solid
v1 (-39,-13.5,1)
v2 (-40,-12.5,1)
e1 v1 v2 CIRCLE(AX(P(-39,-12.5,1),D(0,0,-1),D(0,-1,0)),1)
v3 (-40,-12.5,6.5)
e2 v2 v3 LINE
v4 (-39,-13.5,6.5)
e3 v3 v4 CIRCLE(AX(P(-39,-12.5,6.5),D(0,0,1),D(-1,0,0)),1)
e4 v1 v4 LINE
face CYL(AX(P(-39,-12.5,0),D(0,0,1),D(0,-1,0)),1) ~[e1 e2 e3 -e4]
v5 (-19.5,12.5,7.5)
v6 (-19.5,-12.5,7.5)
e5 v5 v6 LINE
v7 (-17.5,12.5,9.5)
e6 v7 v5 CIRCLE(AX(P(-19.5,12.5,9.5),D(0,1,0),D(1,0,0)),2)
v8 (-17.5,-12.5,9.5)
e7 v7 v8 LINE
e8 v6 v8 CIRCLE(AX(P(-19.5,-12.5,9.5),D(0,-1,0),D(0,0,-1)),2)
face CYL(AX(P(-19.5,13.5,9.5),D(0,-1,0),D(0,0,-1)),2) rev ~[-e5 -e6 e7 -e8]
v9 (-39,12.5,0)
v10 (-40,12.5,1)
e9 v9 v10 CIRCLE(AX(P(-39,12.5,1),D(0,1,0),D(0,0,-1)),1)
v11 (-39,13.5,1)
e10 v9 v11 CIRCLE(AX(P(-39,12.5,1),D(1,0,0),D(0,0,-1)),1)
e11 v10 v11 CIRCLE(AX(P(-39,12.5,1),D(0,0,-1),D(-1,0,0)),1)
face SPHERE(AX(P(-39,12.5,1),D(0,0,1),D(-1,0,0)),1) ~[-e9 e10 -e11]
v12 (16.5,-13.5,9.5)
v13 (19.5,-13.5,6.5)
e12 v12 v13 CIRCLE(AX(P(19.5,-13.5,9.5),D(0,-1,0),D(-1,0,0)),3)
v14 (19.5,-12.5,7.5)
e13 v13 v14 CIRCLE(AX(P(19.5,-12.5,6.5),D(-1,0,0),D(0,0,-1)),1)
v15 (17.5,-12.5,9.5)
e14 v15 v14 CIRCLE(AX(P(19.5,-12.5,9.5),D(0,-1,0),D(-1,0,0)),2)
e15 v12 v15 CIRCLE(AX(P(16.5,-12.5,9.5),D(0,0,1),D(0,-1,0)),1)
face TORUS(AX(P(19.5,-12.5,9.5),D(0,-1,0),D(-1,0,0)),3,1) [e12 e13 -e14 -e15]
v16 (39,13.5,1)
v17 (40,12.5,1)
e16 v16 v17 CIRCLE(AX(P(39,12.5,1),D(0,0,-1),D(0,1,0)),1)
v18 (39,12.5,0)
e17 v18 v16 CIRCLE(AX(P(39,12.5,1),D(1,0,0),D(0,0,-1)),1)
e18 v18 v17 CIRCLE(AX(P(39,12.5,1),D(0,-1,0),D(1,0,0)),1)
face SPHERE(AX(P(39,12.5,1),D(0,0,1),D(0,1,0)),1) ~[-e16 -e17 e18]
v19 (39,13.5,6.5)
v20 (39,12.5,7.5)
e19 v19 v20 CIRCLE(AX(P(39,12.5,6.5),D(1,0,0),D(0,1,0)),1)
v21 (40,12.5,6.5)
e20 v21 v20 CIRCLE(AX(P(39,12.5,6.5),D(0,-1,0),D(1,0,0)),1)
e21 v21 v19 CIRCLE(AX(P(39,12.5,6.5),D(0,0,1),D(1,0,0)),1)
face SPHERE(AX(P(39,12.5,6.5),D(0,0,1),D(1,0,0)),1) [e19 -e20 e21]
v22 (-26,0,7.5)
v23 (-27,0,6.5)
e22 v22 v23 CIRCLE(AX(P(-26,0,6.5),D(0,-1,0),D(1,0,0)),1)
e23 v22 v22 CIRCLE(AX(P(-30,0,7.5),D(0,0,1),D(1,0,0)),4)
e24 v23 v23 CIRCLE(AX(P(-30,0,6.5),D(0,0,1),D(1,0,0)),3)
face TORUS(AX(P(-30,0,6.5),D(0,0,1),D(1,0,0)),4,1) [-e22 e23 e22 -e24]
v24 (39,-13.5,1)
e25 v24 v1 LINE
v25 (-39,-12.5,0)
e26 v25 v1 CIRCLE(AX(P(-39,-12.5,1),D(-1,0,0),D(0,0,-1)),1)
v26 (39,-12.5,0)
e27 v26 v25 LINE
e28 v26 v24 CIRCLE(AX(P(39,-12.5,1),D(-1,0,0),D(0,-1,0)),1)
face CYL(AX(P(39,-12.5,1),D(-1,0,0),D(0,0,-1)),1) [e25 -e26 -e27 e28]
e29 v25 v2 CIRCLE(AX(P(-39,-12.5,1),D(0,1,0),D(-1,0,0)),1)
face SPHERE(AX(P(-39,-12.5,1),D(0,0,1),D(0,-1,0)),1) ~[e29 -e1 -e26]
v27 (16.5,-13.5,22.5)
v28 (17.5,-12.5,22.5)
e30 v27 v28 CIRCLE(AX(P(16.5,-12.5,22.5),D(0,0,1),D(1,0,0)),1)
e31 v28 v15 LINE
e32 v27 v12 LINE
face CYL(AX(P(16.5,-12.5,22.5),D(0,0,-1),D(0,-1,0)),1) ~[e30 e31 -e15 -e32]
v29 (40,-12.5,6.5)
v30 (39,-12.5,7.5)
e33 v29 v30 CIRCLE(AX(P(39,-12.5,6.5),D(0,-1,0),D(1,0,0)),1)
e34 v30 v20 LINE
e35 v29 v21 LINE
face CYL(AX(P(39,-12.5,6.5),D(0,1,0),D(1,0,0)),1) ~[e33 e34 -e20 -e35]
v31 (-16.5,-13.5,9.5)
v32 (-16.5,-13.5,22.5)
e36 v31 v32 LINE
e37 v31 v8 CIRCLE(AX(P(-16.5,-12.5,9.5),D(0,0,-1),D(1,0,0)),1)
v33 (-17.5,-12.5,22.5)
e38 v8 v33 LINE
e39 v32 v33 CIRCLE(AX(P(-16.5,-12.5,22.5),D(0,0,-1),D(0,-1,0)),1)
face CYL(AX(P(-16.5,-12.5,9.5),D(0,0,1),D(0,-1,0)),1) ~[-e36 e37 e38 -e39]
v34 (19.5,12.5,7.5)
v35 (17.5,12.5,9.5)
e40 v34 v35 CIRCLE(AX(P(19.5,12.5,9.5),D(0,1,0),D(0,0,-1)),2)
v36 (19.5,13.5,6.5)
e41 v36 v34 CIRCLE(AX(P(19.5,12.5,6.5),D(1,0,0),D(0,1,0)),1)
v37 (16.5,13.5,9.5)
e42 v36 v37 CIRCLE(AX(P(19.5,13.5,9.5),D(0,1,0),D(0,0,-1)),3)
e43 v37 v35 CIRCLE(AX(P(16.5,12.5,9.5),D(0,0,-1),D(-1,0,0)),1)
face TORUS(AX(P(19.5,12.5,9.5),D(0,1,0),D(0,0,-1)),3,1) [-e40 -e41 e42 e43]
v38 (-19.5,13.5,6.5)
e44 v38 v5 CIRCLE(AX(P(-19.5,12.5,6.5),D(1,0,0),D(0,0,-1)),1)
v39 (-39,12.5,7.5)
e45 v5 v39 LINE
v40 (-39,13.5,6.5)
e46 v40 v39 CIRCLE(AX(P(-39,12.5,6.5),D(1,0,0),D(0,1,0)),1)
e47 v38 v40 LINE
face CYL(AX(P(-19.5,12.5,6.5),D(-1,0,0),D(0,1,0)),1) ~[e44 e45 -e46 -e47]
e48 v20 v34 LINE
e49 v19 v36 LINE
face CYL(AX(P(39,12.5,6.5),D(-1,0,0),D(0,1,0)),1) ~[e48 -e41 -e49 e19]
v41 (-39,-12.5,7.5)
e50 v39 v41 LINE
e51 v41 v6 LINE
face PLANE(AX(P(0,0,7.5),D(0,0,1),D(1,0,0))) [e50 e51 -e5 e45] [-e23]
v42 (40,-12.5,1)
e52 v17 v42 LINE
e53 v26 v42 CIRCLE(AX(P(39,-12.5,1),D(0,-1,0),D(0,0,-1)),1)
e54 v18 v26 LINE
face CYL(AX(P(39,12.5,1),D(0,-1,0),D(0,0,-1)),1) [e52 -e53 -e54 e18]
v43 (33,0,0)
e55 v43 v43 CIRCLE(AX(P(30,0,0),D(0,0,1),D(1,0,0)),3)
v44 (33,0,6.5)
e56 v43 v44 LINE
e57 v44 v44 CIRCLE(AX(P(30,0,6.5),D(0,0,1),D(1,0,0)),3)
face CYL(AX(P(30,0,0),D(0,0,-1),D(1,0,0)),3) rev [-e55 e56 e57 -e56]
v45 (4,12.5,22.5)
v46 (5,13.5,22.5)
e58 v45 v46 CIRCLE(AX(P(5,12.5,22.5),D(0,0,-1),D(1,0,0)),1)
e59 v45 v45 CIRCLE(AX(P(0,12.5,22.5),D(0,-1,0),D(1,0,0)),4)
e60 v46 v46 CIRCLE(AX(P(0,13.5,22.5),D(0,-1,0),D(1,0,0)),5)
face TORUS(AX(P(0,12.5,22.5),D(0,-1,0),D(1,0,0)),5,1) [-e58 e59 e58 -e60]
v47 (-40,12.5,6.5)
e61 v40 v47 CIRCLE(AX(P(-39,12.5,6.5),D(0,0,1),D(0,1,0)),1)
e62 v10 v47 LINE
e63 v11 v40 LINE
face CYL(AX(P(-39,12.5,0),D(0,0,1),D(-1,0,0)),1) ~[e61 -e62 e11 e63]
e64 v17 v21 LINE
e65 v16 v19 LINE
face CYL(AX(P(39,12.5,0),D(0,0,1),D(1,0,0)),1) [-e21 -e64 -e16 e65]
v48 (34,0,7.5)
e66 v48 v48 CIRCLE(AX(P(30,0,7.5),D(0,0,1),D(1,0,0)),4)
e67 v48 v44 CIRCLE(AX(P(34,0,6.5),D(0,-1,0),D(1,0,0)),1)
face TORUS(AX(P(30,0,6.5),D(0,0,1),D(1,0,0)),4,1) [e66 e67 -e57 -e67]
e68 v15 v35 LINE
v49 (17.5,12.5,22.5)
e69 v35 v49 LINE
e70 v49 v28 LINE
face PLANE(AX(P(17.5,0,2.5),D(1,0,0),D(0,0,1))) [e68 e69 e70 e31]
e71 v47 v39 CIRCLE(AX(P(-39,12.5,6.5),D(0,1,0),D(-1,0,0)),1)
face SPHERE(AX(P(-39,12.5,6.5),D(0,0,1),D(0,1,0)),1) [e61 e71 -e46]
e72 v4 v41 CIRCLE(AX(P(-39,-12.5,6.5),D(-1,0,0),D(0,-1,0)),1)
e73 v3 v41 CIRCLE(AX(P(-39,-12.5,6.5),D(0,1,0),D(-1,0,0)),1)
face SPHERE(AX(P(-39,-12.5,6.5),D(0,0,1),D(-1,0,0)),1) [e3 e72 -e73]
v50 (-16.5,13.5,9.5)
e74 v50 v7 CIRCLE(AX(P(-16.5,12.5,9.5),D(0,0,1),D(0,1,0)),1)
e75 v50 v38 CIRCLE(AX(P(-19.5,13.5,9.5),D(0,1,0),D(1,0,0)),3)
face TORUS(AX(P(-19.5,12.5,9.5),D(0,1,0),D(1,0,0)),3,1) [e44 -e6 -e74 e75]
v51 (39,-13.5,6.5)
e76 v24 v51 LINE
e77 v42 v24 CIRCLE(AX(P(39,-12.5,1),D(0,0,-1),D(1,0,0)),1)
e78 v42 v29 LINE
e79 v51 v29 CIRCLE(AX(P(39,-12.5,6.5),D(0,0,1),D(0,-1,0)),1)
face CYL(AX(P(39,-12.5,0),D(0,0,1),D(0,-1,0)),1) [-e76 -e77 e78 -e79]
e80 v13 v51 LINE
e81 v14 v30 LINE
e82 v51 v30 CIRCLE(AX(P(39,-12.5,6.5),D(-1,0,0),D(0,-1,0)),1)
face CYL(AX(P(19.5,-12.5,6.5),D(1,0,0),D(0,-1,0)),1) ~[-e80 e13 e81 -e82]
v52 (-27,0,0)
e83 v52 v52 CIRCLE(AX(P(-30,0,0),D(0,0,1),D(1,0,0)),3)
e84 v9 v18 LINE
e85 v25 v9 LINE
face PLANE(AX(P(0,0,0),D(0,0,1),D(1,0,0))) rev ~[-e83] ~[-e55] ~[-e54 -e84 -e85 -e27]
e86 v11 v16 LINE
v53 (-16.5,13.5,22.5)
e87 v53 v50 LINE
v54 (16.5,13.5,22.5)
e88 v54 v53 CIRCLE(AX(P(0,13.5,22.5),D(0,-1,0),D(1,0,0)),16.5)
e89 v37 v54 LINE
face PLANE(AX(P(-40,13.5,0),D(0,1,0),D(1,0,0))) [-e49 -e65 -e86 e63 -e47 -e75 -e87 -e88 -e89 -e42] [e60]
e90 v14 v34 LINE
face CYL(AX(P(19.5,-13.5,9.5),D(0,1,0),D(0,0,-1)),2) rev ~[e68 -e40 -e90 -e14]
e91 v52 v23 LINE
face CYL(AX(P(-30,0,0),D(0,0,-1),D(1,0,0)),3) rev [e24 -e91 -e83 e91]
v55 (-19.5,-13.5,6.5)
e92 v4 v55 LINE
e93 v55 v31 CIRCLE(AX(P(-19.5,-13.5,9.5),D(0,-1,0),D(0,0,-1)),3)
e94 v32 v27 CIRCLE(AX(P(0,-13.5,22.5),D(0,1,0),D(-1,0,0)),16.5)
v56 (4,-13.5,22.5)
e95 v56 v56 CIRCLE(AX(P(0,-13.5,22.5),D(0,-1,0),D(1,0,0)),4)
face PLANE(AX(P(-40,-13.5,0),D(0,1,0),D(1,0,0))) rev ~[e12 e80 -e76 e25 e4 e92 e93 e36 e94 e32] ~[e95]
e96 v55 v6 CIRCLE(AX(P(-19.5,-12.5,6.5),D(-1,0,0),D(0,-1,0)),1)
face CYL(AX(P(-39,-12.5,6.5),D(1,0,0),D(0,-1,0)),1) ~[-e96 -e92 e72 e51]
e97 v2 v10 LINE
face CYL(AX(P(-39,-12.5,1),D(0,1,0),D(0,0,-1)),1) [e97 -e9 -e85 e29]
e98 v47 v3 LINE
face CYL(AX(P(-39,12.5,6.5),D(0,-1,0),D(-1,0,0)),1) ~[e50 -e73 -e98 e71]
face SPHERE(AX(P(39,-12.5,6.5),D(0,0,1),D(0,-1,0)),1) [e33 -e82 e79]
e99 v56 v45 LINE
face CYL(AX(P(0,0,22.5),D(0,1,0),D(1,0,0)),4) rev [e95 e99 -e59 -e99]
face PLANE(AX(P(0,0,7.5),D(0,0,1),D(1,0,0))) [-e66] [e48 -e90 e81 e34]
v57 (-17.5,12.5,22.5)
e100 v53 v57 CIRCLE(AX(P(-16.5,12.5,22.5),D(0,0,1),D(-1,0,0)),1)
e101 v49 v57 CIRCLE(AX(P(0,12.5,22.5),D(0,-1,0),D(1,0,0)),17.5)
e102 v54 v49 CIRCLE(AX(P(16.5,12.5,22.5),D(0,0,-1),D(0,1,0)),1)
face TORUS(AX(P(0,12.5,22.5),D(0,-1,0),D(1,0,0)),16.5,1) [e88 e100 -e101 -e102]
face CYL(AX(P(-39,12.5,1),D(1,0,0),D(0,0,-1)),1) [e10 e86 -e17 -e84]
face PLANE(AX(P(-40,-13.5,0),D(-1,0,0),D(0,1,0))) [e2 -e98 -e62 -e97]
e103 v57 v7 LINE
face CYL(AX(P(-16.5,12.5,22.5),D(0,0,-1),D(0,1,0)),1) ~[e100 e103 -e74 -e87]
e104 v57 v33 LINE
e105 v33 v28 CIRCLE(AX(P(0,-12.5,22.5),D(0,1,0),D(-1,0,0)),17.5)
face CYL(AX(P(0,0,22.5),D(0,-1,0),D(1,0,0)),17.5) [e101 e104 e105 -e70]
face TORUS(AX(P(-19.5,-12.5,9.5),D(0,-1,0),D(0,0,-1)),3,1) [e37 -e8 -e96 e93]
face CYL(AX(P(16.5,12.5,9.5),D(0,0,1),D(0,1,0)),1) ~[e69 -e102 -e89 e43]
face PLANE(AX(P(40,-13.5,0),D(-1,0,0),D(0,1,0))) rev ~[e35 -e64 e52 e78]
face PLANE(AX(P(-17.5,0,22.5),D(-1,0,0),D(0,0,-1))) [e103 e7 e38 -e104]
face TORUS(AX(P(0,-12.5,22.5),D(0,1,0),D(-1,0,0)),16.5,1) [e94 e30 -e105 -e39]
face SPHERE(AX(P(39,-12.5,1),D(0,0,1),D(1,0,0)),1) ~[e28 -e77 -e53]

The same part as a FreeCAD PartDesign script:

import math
import FreeCAD as App
import Part
import Sketcher


def edges_at(feature, points):
    """Names of the edges that pass closest to the given points."""
    edges = feature.Shape.Edges
    near = lambda p: min(range(len(edges)), key=lambda i: edges[i].distToShape(Part.Vertex(*p))[0])
    return sorted({f"Edge{near(p) + 1}" for p in points})


def add_polygon(sketch, points):
    """Adds a closed chain of lines whose ends are joined by coincident constraints."""
    first, n = sketch.GeometryCount, len(points)
    for a, b in zip(points, points[1:] + points[:1]):
        sketch.addGeometry(Part.LineSegment(App.Vector(*a, 0), App.Vector(*b, 0)), False)
    for i in range(n):
        sketch.addConstraint(Sketcher.Constraint("Coincident", first + i, 2, first + (i + 1) % n, 1))

doc = App.newDocument("Part")
body = doc.addObject("PartDesign::Body", "Body")

# Sketch on XY plane
sketch1 = body.newObject("Sketcher::SketchObject", "Sketch")
sketch1.AttachmentSupport = (doc.getObject("XY_Plane"), [""])
sketch1.MapMode = "FlatFace"
add_polygon(sketch1, [(-40, 13.5), (-40, -13.5), (40, -13.5), (40, 13.5)])  # lines 0-3
sketch1.addGeometry(Part.Circle(App.Vector(-30, 0, 0), App.Vector(0, 0, 1), 3), False)  # 4
sketch1.addGeometry(Part.Circle(App.Vector(30, 0, 0), App.Vector(0, 0, 1), 3), False)  # 5
sketch1.addConstraint([
    Sketcher.Constraint("Vertical", 0),
    Sketcher.Constraint("Horizontal", 1),
    Sketcher.Constraint("Vertical", 2),
    Sketcher.Constraint("Horizontal", 3),
    Sketcher.Constraint("Equal", 4, 5),
    Sketcher.Constraint("Symmetric", 4, 3, 5, 3, -1, 1),
    Sketcher.Constraint("Symmetric", 0, 2, 2, 2, -1, 1),
    Sketcher.Constraint("PointOnObject", 4, 3, -1),
    Sketcher.Constraint("Diameter", 4, 6.0),
    Sketcher.Constraint("DistanceX", 1, 1, 1, 2, 80.0),
    Sketcher.Constraint("DistanceY", 0, 2, 0, 1, 27.0),
    Sketcher.Constraint("DistanceX", 4, 3, -1, 1, 30.0),
])
pad1 = body.newObject("PartDesign::Pad", "Pad")
pad1.Profile = sketch1
pad1.Length = 7.5

# Sketch on XZ plane
sketch2 = body.newObject("Sketcher::SketchObject", "Sketch001")
sketch2.AttachmentSupport = (doc.getObject("XZ_Plane"), [""])
sketch2.MapMode = "FlatFace"
sketch2.addGeometry([
    Part.LineSegment(App.Vector(17.5, 2.5, 0), App.Vector(17.5, 22.5, 0)),  # 0
    Part.ArcOfCircle(Part.Circle(App.Vector(0, 22.5, 0), App.Vector(0, 0, 1), 17.5), math.radians(0), math.radians(180)),  # 1
    Part.LineSegment(App.Vector(-17.5, 22.5, 0), App.Vector(-17.5, 2.5, 0)),  # 2
    Part.LineSegment(App.Vector(-17.5, 2.5, 0), App.Vector(17.5, 2.5, 0)),  # 3
    Part.Circle(App.Vector(0, 22.5, 0), App.Vector(0, 0, 1), 4),  # 4
], False)
sketch2.addConstraint([
    Sketcher.Constraint("Tangent", 0, 2, 1, 1),
    Sketcher.Constraint("Tangent", 1, 2, 2, 1),
    Sketcher.Constraint("Coincident", 2, 2, 3, 1),
    Sketcher.Constraint("Coincident", 3, 2, 0, 1),
    Sketcher.Constraint("Vertical", 0),
    Sketcher.Constraint("Vertical", 2),
    Sketcher.Constraint("Horizontal", 3),
    Sketcher.Constraint("Coincident", 4, 3, 1, 3),
    Sketcher.Constraint("PointOnObject", 1, 3, -2),
    Sketcher.Constraint("Diameter", 4, 8.0),
    Sketcher.Constraint("Radius", 1, 17.5),
    Sketcher.Constraint("DistanceY", 0, 1, 0, 2, 20.0),
    Sketcher.Constraint("DistanceY", -1, 1, 1, 3, 22.5),
])
pad2 = body.newObject("PartDesign::Pad", "Pad001")
pad2.Profile = sketch2
pad2.Length = 27
pad2.Midplane = True
doc.recompute()

fillet = body.newObject("PartDesign::Fillet", "Fillet")
fillet.Base = (pad2, edges_at(pad2, [(17.5, 0, 7.5), (-17.5, 0, 7.5)]))
fillet.Radius = 2
doc.recompute()

fillet2 = body.newObject("PartDesign::Fillet", "Fillet001")
fillet2.Base = (fillet, edges_at(fillet, [
    (-40, -13.5, 3.75),
    (-40, 13.5, 3.75),
    (40, -13.5, 3.75),
    (40, 13.5, 3.75),
]))
fillet2.Radius = 1
doc.recompute()

fillet3 = body.newObject("PartDesign::Fillet", "Fillet002")
fillet3.Base = (fillet2, edges_at(fillet2, [
    (-29.25, -13.5, 7.5),
    (-39.707, -13.207, 7.5),
    (-19.5, 0, 7.5),
    (-40, 0, 7.5),
    (-29.25, 13.5, 7.5),
    (-39.707, 13.207, 7.5),
    (-33, 0, 7.5),
    (-18.086, 13.5, 8.086),
    (-17.5, 0, 9.5),
    (-18.086, -13.5, 8.086),
    (-17.5, -13.5, 16),
    (-17.5, 0, 22.5),
    (-17.5, 13.5, 16),
    (0, 13.5, 40),
    (0, -13.5, 40),
    (17.5, 0, 22.5),
    (17.5, -13.5, 16),
    (17.5, 0, 9.5),
    (17.5, 13.5, 16),
    (29.25, 13.5, 7.5),
    (39, 13.5, 3.75),
    (18.086, 13.5, 8.086),
    (0, 13.5, 0),
    (-39, 13.5, 3.75),
    (-4, 13.5, 22.5),
    (18.086, -13.5, 8.086),
    (19.5, 0, 7.5),
    (29.25, -13.5, 7.5),
    (39.707, -13.207, 7.5),
    (40, 0, 7.5),
    (39.707, 13.207, 7.5),
    (27, 0, 7.5),
]))
fillet3.Radius = 1

doc.recompute()
